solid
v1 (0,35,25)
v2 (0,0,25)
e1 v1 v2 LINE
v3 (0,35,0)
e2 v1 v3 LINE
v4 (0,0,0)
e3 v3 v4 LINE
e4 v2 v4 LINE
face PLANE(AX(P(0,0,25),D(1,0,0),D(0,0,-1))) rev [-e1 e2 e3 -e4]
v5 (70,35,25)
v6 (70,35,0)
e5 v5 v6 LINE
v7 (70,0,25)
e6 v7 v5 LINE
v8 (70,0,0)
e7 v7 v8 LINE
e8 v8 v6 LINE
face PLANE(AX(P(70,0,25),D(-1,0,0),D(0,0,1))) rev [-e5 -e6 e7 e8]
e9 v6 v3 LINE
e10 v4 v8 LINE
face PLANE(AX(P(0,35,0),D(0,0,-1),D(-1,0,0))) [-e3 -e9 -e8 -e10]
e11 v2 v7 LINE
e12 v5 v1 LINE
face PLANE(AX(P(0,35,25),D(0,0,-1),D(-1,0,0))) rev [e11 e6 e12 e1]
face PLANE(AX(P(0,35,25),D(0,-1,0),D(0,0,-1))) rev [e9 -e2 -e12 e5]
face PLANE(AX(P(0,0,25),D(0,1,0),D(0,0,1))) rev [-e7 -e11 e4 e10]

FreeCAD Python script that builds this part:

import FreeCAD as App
import Part
import Sketcher
from FreeCAD import Vector


def add_polygon(sketch, points):
    """Adds a closed chain of lines whose ends are joined by coincident constraints."""
    first, n = sketch.GeometryCount, len(points)
    for a, b in zip(points, points[1:] + points[:1]):
        sketch.addGeometry(Part.LineSegment(App.Vector(*a, 0), App.Vector(*b, 0)), False)
    for i in range(n):
        sketch.addConstraint(Sketcher.Constraint("Coincident", first + i, 2, first + (i + 1) % n, 1))

doc = App.newDocument("Part")
params = doc.addObject("Spreadsheet::Sheet", "Params")
for row, (alias, value) in enumerate([
    ("sketch1_width", "70 mm"),
    ("sketch1_height", "35 mm"),
    ("pad1_length", "25 mm"),
], start=1):
    params.set(f"A{row}", alias)
    params.set(f"B{row}", "=" + value)
    params.setAlias(f"B{row}", alias)

body = doc.addObject("PartDesign::Body", "Body")

# Sketch on XY plane
sketch1 = body.newObject("Sketcher::SketchObject", "Sketch")
sketch1.AttachmentSupport = (doc.getObject("XY_Plane"), [""])
sketch1.MapMode = "FlatFace"
add_polygon(sketch1, [(0, 35), (0, 0), (70, 0), (70, 35)])  # lines 0-3
sketch1.addConstraint(Sketcher.Constraint("Vertical", 0))
sketch1.addConstraint(Sketcher.Constraint("Horizontal", 1))
sketch1.addConstraint(Sketcher.Constraint("Vertical", 2))
sketch1.addConstraint(Sketcher.Constraint("Horizontal", 3))
sketch1.addConstraint(Sketcher.Constraint("Coincident", 0, 2, -1, 1))
sketch1.addConstraint(Sketcher.Constraint("DistanceX", 1, 1, 1, 2, 70.0))
sketch1.addConstraint(Sketcher.Constraint("DistanceY", 0, 2, 0, 1, 35.0))
sketch1.setExpression("Constraints[9]", "Params.sketch1_width")
sketch1.setExpression("Constraints[10]", "Params.sketch1_height")
pad1 = body.newObject("PartDesign::Pad", "Pad")
pad1.Profile = sketch1
pad1.setExpression("Length", "Params.pad1_length")

doc.recompute()
